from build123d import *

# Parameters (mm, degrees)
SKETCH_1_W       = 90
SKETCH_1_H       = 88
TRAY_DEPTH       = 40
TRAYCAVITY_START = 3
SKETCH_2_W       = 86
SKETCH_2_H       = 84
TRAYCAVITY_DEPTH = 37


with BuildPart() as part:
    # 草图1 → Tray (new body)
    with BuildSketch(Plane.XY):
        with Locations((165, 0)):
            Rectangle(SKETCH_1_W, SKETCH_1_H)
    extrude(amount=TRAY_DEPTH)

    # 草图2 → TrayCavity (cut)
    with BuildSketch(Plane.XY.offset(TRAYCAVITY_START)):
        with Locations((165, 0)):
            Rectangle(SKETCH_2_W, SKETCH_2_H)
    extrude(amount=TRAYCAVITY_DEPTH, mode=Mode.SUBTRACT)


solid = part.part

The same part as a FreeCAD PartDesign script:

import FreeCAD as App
import Part
import Sketcher

V = App.Vector
Q = App.Units.Quantity


def add_polygon(sketch, points):
    """Adds a closed chain of lines whose ends are joined by coincident constraints."""
    first, n = sketch.GeometryCount, len(points)
    for a, b in zip(points, points[1:] + points[:1]):
        sketch.addGeometry(Part.LineSegment(App.Vector(*a, 0), App.Vector(*b, 0)), False)
    for i in range(n):
        sketch.addConstraint(Sketcher.Constraint("Coincident", first + i, 2, first + (i + 1) % n, 1))

doc = App.newDocument("Part")
body = doc.addObject("PartDesign::Body", "Body")

# Sketch on XY plane
sketch1 = body.newObject("Sketcher::SketchObject", "Sketch")
sketch1.AttachmentSupport = (doc.getObject("XY_Plane"), [""])
sketch1.MapMode = "FlatFace"
add_polygon(sketch1, [(120, 44), (120, -44), (210, -44), (210, 44)])  # lines 0-3
sketch1.addConstraint([
    Sketcher.Constraint("Vertical", 0),
    Sketcher.Constraint("Horizontal", 1),
    Sketcher.Constraint("Vertical", 2),
    Sketcher.Constraint("Horizontal", 3),
    Sketcher.Constraint("DistanceX", 1, 1, 1, 2, Q("90 mm")),
    Sketcher.Constraint("DistanceY", 0, 2, 0, 1, Q("88 mm")),
    Sketcher.Constraint("DistanceX", -1, 1, 0, 2, Q("120 mm")),
    Sketcher.Constraint("DistanceY", 0, 2, -1, 1, Q("44 mm")),
])
pad1 = body.newObject("PartDesign::Pad", "Pad")
pad1.Profile = sketch1
pad1.Length = 40

# Sketch on XY plane
sketch2 = body.newObject("Sketcher::SketchObject", "Sketch001")
sketch2.AttachmentSupport = (doc.getObject("XY_Plane"), [""])
sketch2.MapMode = "FlatFace"
sketch2.AttachmentOffset = App.Placement(V(0, 0, 3), App.Rotation())
add_polygon(sketch2, [(122, 42), (122, -42), (208, -42), (208, 42)])  # lines 0-3
sketch2.addConstraint([
    Sketcher.Constraint("Vertical", 0),
    Sketcher.Constraint("Horizontal", 1),
    Sketcher.Constraint("Vertical", 2),
    Sketcher.Constraint("Horizontal", 3),
    Sketcher.Constraint("DistanceX", 1, 1, 1, 2, Q("86 mm")),
    Sketcher.Constraint("DistanceY", 0, 2, 0, 1, Q("84 mm")),
    Sketcher.Constraint("DistanceX", -1, 1, 0, 2, Q("122 mm")),
    Sketcher.Constraint("DistanceY", 0, 2, -1, 1, Q("42 mm")),
])
pocket1 = body.newObject("PartDesign::Pocket", "Pocket")
pocket1.Profile = sketch2
pocket1.Length = 37
pocket1.Reversed = True

doc.recompute()
